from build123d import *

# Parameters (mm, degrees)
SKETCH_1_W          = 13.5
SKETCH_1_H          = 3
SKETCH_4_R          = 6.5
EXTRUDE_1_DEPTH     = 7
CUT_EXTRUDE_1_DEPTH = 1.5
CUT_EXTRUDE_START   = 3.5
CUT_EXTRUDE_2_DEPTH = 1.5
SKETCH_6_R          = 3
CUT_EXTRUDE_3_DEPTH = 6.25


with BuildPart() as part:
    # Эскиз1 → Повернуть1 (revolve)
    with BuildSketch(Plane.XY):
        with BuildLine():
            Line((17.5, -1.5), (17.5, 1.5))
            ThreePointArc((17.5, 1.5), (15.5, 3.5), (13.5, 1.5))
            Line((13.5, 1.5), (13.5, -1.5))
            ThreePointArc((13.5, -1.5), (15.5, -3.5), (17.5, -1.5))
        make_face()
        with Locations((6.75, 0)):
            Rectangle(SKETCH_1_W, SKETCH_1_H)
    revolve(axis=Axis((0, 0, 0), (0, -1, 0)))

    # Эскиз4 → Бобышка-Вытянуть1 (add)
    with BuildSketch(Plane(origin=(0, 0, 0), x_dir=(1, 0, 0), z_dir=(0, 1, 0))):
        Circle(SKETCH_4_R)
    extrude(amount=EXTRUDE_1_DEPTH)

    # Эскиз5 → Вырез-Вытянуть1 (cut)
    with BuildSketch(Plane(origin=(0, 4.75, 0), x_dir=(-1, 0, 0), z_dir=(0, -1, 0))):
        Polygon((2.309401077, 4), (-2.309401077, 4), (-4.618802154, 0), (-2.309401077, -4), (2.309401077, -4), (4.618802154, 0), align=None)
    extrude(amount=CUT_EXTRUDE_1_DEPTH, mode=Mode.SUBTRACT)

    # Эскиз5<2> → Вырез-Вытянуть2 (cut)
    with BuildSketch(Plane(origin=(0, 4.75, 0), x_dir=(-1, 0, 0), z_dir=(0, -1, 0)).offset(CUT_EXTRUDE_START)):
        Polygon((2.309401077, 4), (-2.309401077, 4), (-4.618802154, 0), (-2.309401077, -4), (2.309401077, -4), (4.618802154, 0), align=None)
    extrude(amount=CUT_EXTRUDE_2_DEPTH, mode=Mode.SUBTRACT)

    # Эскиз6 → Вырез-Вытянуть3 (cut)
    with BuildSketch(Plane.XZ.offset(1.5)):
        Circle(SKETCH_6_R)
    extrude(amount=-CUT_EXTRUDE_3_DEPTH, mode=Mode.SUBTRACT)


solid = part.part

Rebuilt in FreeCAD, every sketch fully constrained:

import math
import FreeCAD as App
import Part
import Sketcher
Q = App.Units.Quantity


def add_polygon(sketch, points):
    """Adds a closed chain of lines whose ends are joined by coincident constraints."""
    first, n = sketch.GeometryCount, len(points)
    for a, b in zip(points, points[1:] + points[:1]):
        sketch.addGeometry(Part.LineSegment(App.Vector(*a, 0), App.Vector(*b, 0)), False)
    for i in range(n):
        sketch.addConstraint(Sketcher.Constraint("Coincident", first + i, 2, first + (i + 1) % n, 1))

doc = App.newDocument("Part")
params = doc.addObject("Spreadsheet::Sheet", "Params")
for row, (alias, value) in enumerate([
    ("sketch1_radius", "2 mm"),
    ("sketch1_height", "3 mm"),
    ("sketch1_width", "13.5 mm"),
    ("revolution_angle", "360 deg"),
    ("sketch2_diameter", "13 mm"),
    ("pad1_length", "7 mm"),
    ("pocket1_length", "1.5 mm"),
    ("pocket2_length", "1.5 mm"),
    ("sketch5_diameter", "6 mm"),
    ("pocket3_length", "6.25 mm"),
], start=1):
    params.set(f"A{row}", alias)
    params.set(f"B{row}", "=" + value)
    params.setAlias(f"B{row}", alias)

body = doc.addObject("PartDesign::Body", "Body")

sketch1 = doc.addObject("Sketcher::SketchObject", "Sketch")
body.addObject(sketch1)
sketch1.AttachmentSupport = (doc.XY_Plane, [""])
sketch1.MapMode = "FlatFace"
sketch1.addGeometry([
    Part.LineSegment(App.Vector(17.5, -1.5, 0), App.Vector(17.5, 1.5, 0)),
    Part.ArcOfCircle(Part.Circle(App.Vector(15.5, 1.5, 0), App.Vector(0, 0, 1), 2), math.radians(0), math.radians(180)),
    Part.LineSegment(App.Vector(13.5, 1.5, 0), App.Vector(0, 1.5, 0)),
    Part.LineSegment(App.Vector(0, 1.5, 0), App.Vector(0, -1.5, 0)),
    Part.LineSegment(App.Vector(0, -1.5, 0), App.Vector(13.5, -1.5, 0)),
    Part.ArcOfCircle(Part.Circle(App.Vector(15.5, -1.5, 0), App.Vector(0, 0, 1), 2), math.radians(180), math.radians(360)),
], False)
sketch1.addConstraint([
    Sketcher.Constraint("Tangent", 0, 2, 1, 1),
    Sketcher.Constraint("Coincident", 1, 2, 2, 1),
    Sketcher.Constraint("Coincident", 2, 2, 3, 1),
    Sketcher.Constraint("Coincident", 3, 2, 4, 1),
    Sketcher.Constraint("Coincident", 4, 2, 5, 1),
    Sketcher.Constraint("Tangent", 5, 2, 0, 1),
    Sketcher.Constraint("Vertical", 0),
    Sketcher.Constraint("Horizontal", 2),
    Sketcher.Constraint("Vertical", 3),
    Sketcher.Constraint("Horizontal", 4),
    Sketcher.Constraint("Equal", 1, 5),
    Sketcher.Constraint("Symmetric", 2, 2, 3, 2, -1, 1),
    Sketcher.Constraint("Horizontal", 0, 2, 1, 2),
    Sketcher.Constraint("Horizontal", 5, 3, 3, 2),
    Sketcher.Constraint("Radius", 1, 2.0),
    Sketcher.Constraint("DistanceY", 0, 1, 0, 2, 3.0),
    Sketcher.Constraint("DistanceX", 2, 2, 2, 1, 13.5),
])
sketch1.setExpression("Constraints[14]", "Params.sketch1_radius")
sketch1.setExpression("Constraints[15]", "Params.sketch1_height")
sketch1.setExpression("Constraints[16]", "Params.sketch1_width")
revolution = doc.addObject("PartDesign::Revolution", "Revolution")
body.addObject(revolution)
revolution.Profile = sketch1
revolution.ReferenceAxis = (sketch1, ["V_Axis"])
revolution.setExpression("Angle", "Params.revolution_angle")

sketch2 = doc.addObject("Sketcher::SketchObject", "Sketch001")
body.addObject(sketch2)
sketch2.AttachmentSupport = (doc.XZ_Plane, [""])
sketch2.MapMode = "FlatFace"
sketch2.addGeometry(Part.Circle(App.Vector(0, 0, 0), App.Vector(0, 0, 1), 6), False)
sketch2.addConstraint([
    Sketcher.Constraint("Coincident", 0, 3, -1, 1),
    Sketcher.Constraint("Diameter", 0, 13.0),
])
sketch2.setExpression("Constraints[1]", "Params.sketch2_diameter")
pad1 = doc.addObject("PartDesign::Pad", "Pad")
body.addObject(pad1)
pad1.Profile = sketch2
pad1.setExpression("Length", "Params.pad1_length")
pad1.Reversed = True

sketch3 = doc.addObject("Sketcher::SketchObject", "Sketch002")
body.addObject(sketch3)
sketch3.AttachmentSupport = (doc.XZ_Plane, [""])
sketch3.MapMode = "FlatFace"
sketch3.AttachmentOffset = App.Placement(App.Vector(0, 0, -4.75), App.Rotation())
add_polygon(sketch3, [(-2.3, -4), (2.3, -4), (4.6, 0), (2.3, 4), (-2.3, 4), (-4.6, 0)])
sketch3.addConstraint([
    Sketcher.Constraint("Horizontal", 0),
    Sketcher.Constraint("Horizontal", 3),
    Sketcher.Constraint("Symmetric", 0, 2, 3, 2, -1, 1),
    Sketcher.Constraint("Symmetric", 1, 2, 4, 2, -1, 1),
    Sketcher.Constraint("PointOnObject", 1, 2, -1),
    Sketcher.Constraint("Parallel", 2, 5),
    Sketcher.Constraint("Vertical", 0, 2, 2, 2),
    Sketcher.Constraint("Angle", 1, Q("60 deg")),
    Sketcher.Constraint("DistanceY", 0, 2, -1, 1, 4.0),
    Sketcher.Constraint("DistanceX", -1, 1, 0, 2, 2.309401),
])
pocket1 = doc.addObject("PartDesign::Pocket", "Pocket")
body.addObject(pocket1)
pocket1.Profile = sketch3
pocket1.setExpression("Length", "Params.pocket1_length")
pocket1.Reversed = True

sketch4 = doc.addObject("Sketcher::SketchObject", "Sketch003")
body.addObject(sketch4)
sketch4.AttachmentSupport = (doc.XZ_Plane, [""])
sketch4.MapMode = "FlatFace"
sketch4.AttachmentOffset = App.Placement(App.Vector(0, 0, -1.25), App.Rotation())
add_polygon(sketch4, [(-2.3, -4), (2.3, -4), (4.6, 0), (2.3, 4), (-2.3, 4), (-4.6, 0)])
sketch4.addConstraint([
    Sketcher.Constraint("Horizontal", 0),
    Sketcher.Constraint("Horizontal", 3),
    Sketcher.Constraint("Symmetric", 0, 2, 3, 2, -1, 1),
    Sketcher.Constraint("Symmetric", 1, 2, 4, 2, -1, 1),
    Sketcher.Constraint("PointOnObject", 1, 2, -1),
    Sketcher.Constraint("Parallel", 2, 5),
    Sketcher.Constraint("Vertical", 0, 2, 2, 2),
    Sketcher.Constraint("Angle", 1, Q("60 deg")),
    Sketcher.Constraint("DistanceY", 0, 2, -1, 1, 4.0),
    Sketcher.Constraint("DistanceX", -1, 1, 0, 2, 2.309401),
])
pocket2 = doc.addObject("PartDesign::Pocket", "Pocket001")
body.addObject(pocket2)
pocket2.Profile = sketch4
pocket2.setExpression("Length", "Params.pocket2_length")
pocket2.Reversed = True

sketch5 = doc.addObject("Sketcher::SketchObject", "Sketch004")
body.addObject(sketch5)
sketch5.AttachmentSupport = (doc.XZ_Plane, [""])
sketch5.MapMode = "FlatFace"
sketch5.AttachmentOffset = App.Placement(App.Vector(0, 0, 1.5), App.Rotation())
sketch5.addGeometry(Part.Circle(App.Vector(0, 0, 0), App.Vector(0, 0, 1), 3), False)
sketch5.addConstraint([
    Sketcher.Constraint("Coincident", 0, 3, -1, 1),
    Sketcher.Constraint("Diameter", 0, 6.0),
])
sketch5.setExpression("Constraints[1]", "Params.sketch5_diameter")
pocket3 = doc.addObject("PartDesign::Pocket", "Pocket002")
body.addObject(pocket3)
pocket3.Profile = sketch5
pocket3.setExpression("Length", "Params.pocket3_length")

doc.recompute()
